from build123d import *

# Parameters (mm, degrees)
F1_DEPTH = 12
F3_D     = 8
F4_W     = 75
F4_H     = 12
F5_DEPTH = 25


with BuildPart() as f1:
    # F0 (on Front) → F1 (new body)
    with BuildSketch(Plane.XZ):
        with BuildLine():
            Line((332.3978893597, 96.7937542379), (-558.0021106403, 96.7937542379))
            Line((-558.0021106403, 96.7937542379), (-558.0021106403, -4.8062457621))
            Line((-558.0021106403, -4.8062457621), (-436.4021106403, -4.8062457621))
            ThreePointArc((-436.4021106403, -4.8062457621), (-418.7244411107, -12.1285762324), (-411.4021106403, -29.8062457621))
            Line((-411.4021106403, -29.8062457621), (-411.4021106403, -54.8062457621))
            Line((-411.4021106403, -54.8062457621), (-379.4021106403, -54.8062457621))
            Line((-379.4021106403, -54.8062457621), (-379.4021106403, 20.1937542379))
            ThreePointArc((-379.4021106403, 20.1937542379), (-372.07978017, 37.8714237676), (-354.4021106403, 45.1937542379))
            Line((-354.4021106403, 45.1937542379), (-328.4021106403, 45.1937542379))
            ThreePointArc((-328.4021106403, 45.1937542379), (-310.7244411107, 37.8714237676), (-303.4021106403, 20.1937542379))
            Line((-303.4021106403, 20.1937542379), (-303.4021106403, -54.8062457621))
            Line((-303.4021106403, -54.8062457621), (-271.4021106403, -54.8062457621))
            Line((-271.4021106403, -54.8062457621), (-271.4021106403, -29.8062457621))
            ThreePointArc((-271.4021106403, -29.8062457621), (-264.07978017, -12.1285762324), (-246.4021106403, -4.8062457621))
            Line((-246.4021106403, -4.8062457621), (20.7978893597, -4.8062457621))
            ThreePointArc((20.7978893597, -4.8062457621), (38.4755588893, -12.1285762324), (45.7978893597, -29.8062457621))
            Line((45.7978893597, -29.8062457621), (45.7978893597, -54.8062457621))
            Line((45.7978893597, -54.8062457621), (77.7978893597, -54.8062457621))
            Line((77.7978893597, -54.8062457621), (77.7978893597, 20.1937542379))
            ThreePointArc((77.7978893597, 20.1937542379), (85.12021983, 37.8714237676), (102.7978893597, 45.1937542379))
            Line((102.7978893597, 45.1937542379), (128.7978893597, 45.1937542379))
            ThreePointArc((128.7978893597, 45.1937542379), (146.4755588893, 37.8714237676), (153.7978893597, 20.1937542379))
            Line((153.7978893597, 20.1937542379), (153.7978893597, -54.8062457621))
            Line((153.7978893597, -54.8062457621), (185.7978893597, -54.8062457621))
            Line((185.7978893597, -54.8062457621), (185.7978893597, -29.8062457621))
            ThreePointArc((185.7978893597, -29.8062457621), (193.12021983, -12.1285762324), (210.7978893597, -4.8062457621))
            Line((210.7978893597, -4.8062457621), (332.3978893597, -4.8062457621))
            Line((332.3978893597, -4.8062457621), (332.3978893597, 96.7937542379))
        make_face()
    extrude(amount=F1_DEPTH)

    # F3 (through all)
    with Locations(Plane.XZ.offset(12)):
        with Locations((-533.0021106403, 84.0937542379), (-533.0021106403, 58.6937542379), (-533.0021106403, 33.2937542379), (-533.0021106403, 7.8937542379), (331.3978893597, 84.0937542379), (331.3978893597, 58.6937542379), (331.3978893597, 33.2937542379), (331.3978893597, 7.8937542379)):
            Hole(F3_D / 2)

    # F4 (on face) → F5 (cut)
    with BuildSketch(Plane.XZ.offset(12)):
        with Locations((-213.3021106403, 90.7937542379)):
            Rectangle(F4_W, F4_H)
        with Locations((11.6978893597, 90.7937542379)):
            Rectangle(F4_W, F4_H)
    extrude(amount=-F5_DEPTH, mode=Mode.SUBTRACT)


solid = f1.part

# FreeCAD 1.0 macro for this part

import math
import FreeCAD as App
import Part
import Sketcher


def add_polygon(sketch, points):
    """Adds a closed chain of lines whose ends are joined by coincident constraints."""
    first, n = sketch.GeometryCount, len(points)
    for a, b in zip(points, points[1:] + points[:1]):
        sketch.addGeometry(Part.LineSegment(App.Vector(*a, 0), App.Vector(*b, 0)), False)
    for i in range(n):
        sketch.addConstraint(Sketcher.Constraint("Coincident", first + i, 2, first + (i + 1) % n, 1))

doc = App.newDocument("Part")
params = doc.addObject("Spreadsheet::Sheet", "Params")
for row, (alias, value) in enumerate([
    ("sketch1_radius", "25 mm"),
    ("sketch1_width", "32 mm"),
    ("sketch1_width2", "26 mm"),
    ("sketch1_height", "25 mm"),
    ("sketch1_height2", "75 mm"),
    ("pad1_length", "12 mm"),
    ("sketch2_diameter", "8 mm"),
    ("hole_diameter", "8 mm"),
    ("sketch3_width", "75 mm"),
    ("sketch3_height", "12 mm"),
    ("pocket1_length", "25 mm"),
], start=1):
    params.set(f"A{row}", alias)
    params.set(f"B{row}", "=" + value)
    params.setAlias(f"B{row}", alias)

body = doc.addObject("PartDesign::Body", "Body")

# Sketch on XZ plane
sketch1 = body.newObject("Sketcher::SketchObject", "Sketch")
sketch1.AttachmentSupport = (doc.getObject("XZ_Plane"), [""])
sketch1.MapMode = "FlatFace"
sketch1.addGeometry(Part.LineSegment(App.Vector(332, 97, 0), App.Vector(-558, 97, 0)), False)
sketch1.addGeometry(Part.LineSegment(App.Vector(-558, 97, 0), App.Vector(-558, -5, 0)), False)
sketch1.addGeometry(Part.LineSegment(App.Vector(-558, -5, 0), App.Vector(-436, -5, 0)), False)
sketch1.addGeometry(Part.ArcOfCircle(Part.Circle(App.Vector(-436, -30, 0), App.Vector(0, 0, 1), 25), math.radians(0), math.radians(90)), False)
sketch1.addGeometry(Part.LineSegment(App.Vector(-411, -30, 0), App.Vector(-411, -55, 0)), False)
sketch1.addGeometry(Part.LineSegment(App.Vector(-411, -55, 0), App.Vector(-379, -55, 0)), False)
sketch1.addGeometry(Part.LineSegment(App.Vector(-379, -55, 0), App.Vector(-379, 20, 0)), False)
sketch1.addGeometry(Part.ArcOfCircle(Part.Circle(App.Vector(-354, 20, 0), App.Vector(0, 0, 1), 25), math.radians(90), math.radians(180)), False)
sketch1.addGeometry(Part.LineSegment(App.Vector(-354, 45, 0), App.Vector(-328, 45, 0)), False)
sketch1.addGeometry(Part.ArcOfCircle(Part.Circle(App.Vector(-328, 20, 0), App.Vector(0, 0, 1), 25), math.radians(0), math.radians(90)), False)
sketch1.addGeometry(Part.LineSegment(App.Vector(-303, 20, 0), App.Vector(-303, -55, 0)), False)
sketch1.addGeometry(Part.LineSegment(App.Vector(-303, -55, 0), App.Vector(-271, -55, 0)), False)
sketch1.addGeometry(Part.LineSegment(App.Vector(-271, -55, 0), App.Vector(-271, -30, 0)), False)
sketch1.addGeometry(Part.ArcOfCircle(Part.Circle(App.Vector(-246, -30, 0), App.Vector(0, 0, 1), 25), math.radians(90), math.radians(180)), False)
sketch1.addGeometry(Part.LineSegment(App.Vector(-246, -5, 0), App.Vector(21, -5, 0)), False)
sketch1.addGeometry(Part.ArcOfCircle(Part.Circle(App.Vector(21, -30, 0), App.Vector(0, 0, 1), 25), math.radians(0), math.radians(90)), False)
sketch1.addGeometry(Part.LineSegment(App.Vector(46, -30, 0), App.Vector(46, -55, 0)), False)
sketch1.addGeometry(Part.LineSegment(App.Vector(46, -55, 0), App.Vector(78, -55, 0)), False)
sketch1.addGeometry(Part.LineSegment(App.Vector(78, -55, 0), App.Vector(78, 20, 0)), False)
sketch1.addGeometry(Part.ArcOfCircle(Part.Circle(App.Vector(103, 20, 0), App.Vector(0, 0, 1), 25), math.radians(90), math.radians(180)), False)
sketch1.addGeometry(Part.LineSegment(App.Vector(103, 45, 0), App.Vector(129, 45, 0)), False)
sketch1.addGeometry(Part.ArcOfCircle(Part.Circle(App.Vector(129, 20, 0), App.Vector(0, 0, 1), 25), math.radians(0), math.radians(90)), False)
sketch1.addGeometry(Part.LineSegment(App.Vector(154, 20, 0), App.Vector(154, -55, 0)), False)
sketch1.addGeometry(Part.LineSegment(App.Vector(154, -55, 0), App.Vector(186, -55, 0)), False)
sketch1.addGeometry(Part.LineSegment(App.Vector(186, -55, 0), App.Vector(186, -30, 0)), False)
sketch1.addGeometry(Part.ArcOfCircle(Part.Circle(App.Vector(211, -30, 0), App.Vector(0, 0, 1), 25), math.radians(90), math.radians(180)), False)
sketch1.addGeometry(Part.LineSegment(App.Vector(211, -5, 0), App.Vector(332, -5, 0)), False)
sketch1.addGeometry(Part.LineSegment(App.Vector(332, -5, 0), App.Vector(332, 97, 0)), False)
sketch1.addConstraint(Sketcher.Constraint("Coincident", 0, 2, 1, 1))
sketch1.addConstraint(Sketcher.Constraint("Coincident", 1, 2, 2, 1))
sketch1.addConstraint(Sketcher.Constraint("Tangent", 2, 2, 3, 2))
sketch1.addConstraint(Sketcher.Constraint("Tangent", 3, 1, 4, 1))
sketch1.addConstraint(Sketcher.Constraint("Coincident", 4, 2, 5, 1))
sketch1.addConstraint(Sketcher.Constraint("Coincident", 5, 2, 6, 1))
sketch1.addConstraint(Sketcher.Constraint("Tangent", 6, 2, 7, 2))
sketch1.addConstraint(Sketcher.Constraint("Tangent", 7, 1, 8, 1))
sketch1.addConstraint(Sketcher.Constraint("Tangent", 8, 2, 9, 2))
sketch1.addConstraint(Sketcher.Constraint("Tangent", 9, 1, 10, 1))
sketch1.addConstraint(Sketcher.Constraint("Coincident", 10, 2, 11, 1))
sketch1.addConstraint(Sketcher.Constraint("Coincident", 11, 2, 12, 1))
sketch1.addConstraint(Sketcher.Constraint("Tangent", 12, 2, 13, 2))
sketch1.addConstraint(Sketcher.Constraint("Tangent", 13, 1, 14, 1))
sketch1.addConstraint(Sketcher.Constraint("Tangent", 14, 2, 15, 2))
sketch1.addConstraint(Sketcher.Constraint("Tangent", 15, 1, 16, 1))
sketch1.addConstraint(Sketcher.Constraint("Coincident", 16, 2, 17, 1))
sketch1.addConstraint(Sketcher.Constraint("Coincident", 17, 2, 18, 1))
sketch1.addConstraint(Sketcher.Constraint("Tangent", 18, 2, 19, 2))
sketch1.addConstraint(Sketcher.Constraint("Tangent", 19, 1, 20, 1))
sketch1.addConstraint(Sketcher.Constraint("Tangent", 20, 2, 21, 2))
sketch1.addConstraint(Sketcher.Constraint("Tangent", 21, 1, 22, 1))
sketch1.addConstraint(Sketcher.Constraint("Coincident", 22, 2, 23, 1))
sketch1.addConstraint(Sketcher.Constraint("Coincident", 23, 2, 24, 1))
sketch1.addConstraint(Sketcher.Constraint("Tangent", 24, 2, 25, 2))
sketch1.addConstraint(Sketcher.Constraint("Tangent", 25, 1, 26, 1))
sketch1.addConstraint(Sketcher.Constraint("Coincident", 26, 2, 27, 1))
sketch1.addConstraint(Sketcher.Constraint("Coincident", 27, 2, 0, 1))
sketch1.addConstraint(Sketcher.Constraint("Horizontal", 0))
sketch1.addConstraint(Sketcher.Constraint("Vertical", 1))
sketch1.addConstraint(Sketcher.Constraint("Horizontal", 2))
sketch1.addConstraint(Sketcher.Constraint("Vertical", 4))
sketch1.addConstraint(Sketcher.Constraint("Horizontal", 5))
sketch1.addConstraint(Sketcher.Constraint("Vertical", 6))
sketch1.addConstraint(Sketcher.Constraint("Horizontal", 8))
sketch1.addConstraint(Sketcher.Constraint("Vertical", 10))
sketch1.addConstraint(Sketcher.Constraint("Horizontal", 11))
sketch1.addConstraint(Sketcher.Constraint("Vertical", 12))
sketch1.addConstraint(Sketcher.Constraint("Horizontal", 14))
sketch1.addConstraint(Sketcher.Constraint("Vertical", 16))
sketch1.addConstraint(Sketcher.Constraint("Horizontal", 17))
sketch1.addConstraint(Sketcher.Constraint("Vertical", 18))
sketch1.addConstraint(Sketcher.Constraint("Horizontal", 20))
sketch1.addConstraint(Sketcher.Constraint("Vertical", 22))
sketch1.addConstraint(Sketcher.Constraint("Horizontal", 23))
sketch1.addConstraint(Sketcher.Constraint("Vertical", 24))
sketch1.addConstraint(Sketcher.Constraint("Horizontal", 26))
sketch1.addConstraint(Sketcher.Constraint("Vertical", 27))
sketch1.addConstraint(Sketcher.Constraint("Equal", 3, 7))
sketch1.addConstraint(Sketcher.Constraint("Equal", 7, 9))
sketch1.addConstraint(Sketcher.Constraint("Equal", 9, 13))
sketch1.addConstraint(Sketcher.Constraint("Equal", 13, 15))
sketch1.addConstraint(Sketcher.Constraint("Equal", 15, 19))
sketch1.addConstraint(Sketcher.Constraint("Equal", 19, 21))
sketch1.addConstraint(Sketcher.Constraint("Equal", 21, 25))
sketch1.addConstraint(Sketcher.Constraint("Horizontal", 3, 3, 13, 3))
sketch1.addConstraint(Sketcher.Constraint("Horizontal", 9, 3, 19, 3))
sketch1.addConstraint(Sketcher.Constraint("Horizontal", 15, 3, 25, 3))
sketch1.addConstraint(Sketcher.Constraint("Horizontal", 5, 2, 10, 2))
sketch1.addConstraint(Sketcher.Constraint("Horizontal", 11, 2, 16, 2))
sketch1.addConstraint(Sketcher.Constraint("Horizontal", 17, 2, 22, 2))
sketch1.addConstraint(Sketcher.Constraint("Equal", 5, 11))
sketch1.addConstraint(Sketcher.Constraint("Equal", 11, 17))
sketch1.addConstraint(Sketcher.Constraint("Equal", 8, 20))
sketch1.addConstraint(Sketcher.Constraint("Equal", 17, 23))
sketch1.addConstraint(Sketcher.Constraint("Equal", 2, 26))
sketch1.addConstraint(Sketcher.Constraint("Radius", 3, 25.0))
sketch1.addConstraint(Sketcher.Constraint("DistanceX", 5, 1, 5, 2, 32.0))
sketch1.addConstraint(Sketcher.Constraint("DistanceX", 8, 1, 8, 2, 26.0))
sketch1.addConstraint(Sketcher.Constraint("DistanceY", 4, 2, 4, 1, 25.0))
sketch1.addConstraint(Sketcher.Constraint("DistanceY", 6, 1, 6, 2, 75.0))
sketch1.addConstraint(Sketcher.Constraint("DistanceX", 0, 2, 0, 1, 890.4))
sketch1.addConstraint(Sketcher.Constraint("DistanceX", 2, 1, 2, 2, 121.6))
sketch1.addConstraint(Sketcher.Constraint("DistanceY", 1, 2, 1, 1, 101.6))
sketch1.addConstraint(Sketcher.Constraint("DistanceX", 3, 3, -1, 1, 436.402111))
sketch1.addConstraint(Sketcher.Constraint("DistanceY", 3, 3, -1, 1, 29.806246))
sketch1.setExpression("Constraints[66]", "Params.sketch1_radius")
sketch1.setExpression("Constraints[67]", "Params.sketch1_width")
sketch1.setExpression("Constraints[68]", "Params.sketch1_width2")
sketch1.setExpression("Constraints[69]", "Params.sketch1_height")
sketch1.setExpression("Constraints[70]", "Params.sketch1_height2")
pad1 = body.newObject("PartDesign::Pad", "Pad")
pad1.Profile = sketch1
pad1.setExpression("Length", "Params.pad1_length")

# Sketch on XZ plane
sketch2 = body.newObject("Sketcher::SketchObject", "Sketch001")
sketch2.AttachmentSupport = (doc.getObject("XZ_Plane"), [""])
sketch2.MapMode = "FlatFace"
sketch2.AttachmentOffset = App.Placement(App.Vector(0, 0, 12), App.Rotation())
sketch2.addGeometry(Part.Circle(App.Vector(-533, 84.1, 0), App.Vector(0, 0, 1), 4), False)
sketch2.addGeometry(Part.Circle(App.Vector(-533, 58.7, 0), App.Vector(0, 0, 1), 4), False)
sketch2.addGeometry(Part.Circle(App.Vector(-533, 33.3, 0), App.Vector(0, 0, 1), 4), False)
sketch2.addGeometry(Part.Circle(App.Vector(-533, 7.9, 0), App.Vector(0, 0, 1), 4), False)
sketch2.addGeometry(Part.Circle(App.Vector(331.4, 84.1, 0), App.Vector(0, 0, 1), 4), False)
sketch2.addGeometry(Part.Circle(App.Vector(331.4, 58.7, 0), App.Vector(0, 0, 1), 4), False)
sketch2.addGeometry(Part.Circle(App.Vector(331.4, 33.3, 0), App.Vector(0, 0, 1), 4), False)
sketch2.addGeometry(Part.Circle(App.Vector(331.4, 7.9, 0), App.Vector(0, 0, 1), 4), False)
sketch2.addConstraint(Sketcher.Constraint("Equal", 0, 1))
sketch2.addConstraint(Sketcher.Constraint("Equal", 1, 2))
sketch2.addConstraint(Sketcher.Constraint("Equal", 2, 3))
sketch2.addConstraint(Sketcher.Constraint("Equal", 3, 4))
sketch2.addConstraint(Sketcher.Constraint("Equal", 4, 5))
sketch2.addConstraint(Sketcher.Constraint("Equal", 5, 6))
sketch2.addConstraint(Sketcher.Constraint("Equal", 6, 7))
sketch2.addConstraint(Sketcher.Constraint("Horizontal", 0, 3, 4, 3))
sketch2.addConstraint(Sketcher.Constraint("Horizontal", 1, 3, 5, 3))
sketch2.addConstraint(Sketcher.Constraint("Horizontal", 2, 3, 6, 3))
sketch2.addConstraint(Sketcher.Constraint("Horizontal", 3, 3, 7, 3))
sketch2.addConstraint(Sketcher.Constraint("Vertical", 0, 3, 1, 3))
sketch2.addConstraint(Sketcher.Constraint("Vertical", 1, 3, 2, 3))
sketch2.addConstraint(Sketcher.Constraint("Vertical", 2, 3, 3, 3))
sketch2.addConstraint(Sketcher.Constraint("Vertical", 4, 3, 5, 3))
sketch2.addConstraint(Sketcher.Constraint("Vertical", 5, 3, 6, 3))
sketch2.addConstraint(Sketcher.Constraint("Vertical", 6, 3, 7, 3))
sketch2.addConstraint(Sketcher.Constraint("Diameter", 0, 8.0))
sketch2.addConstraint(Sketcher.Constraint("DistanceY", 1, 3, 0, 3, 25.4))
sketch2.addConstraint(Sketcher.Constraint("DistanceY", 2, 3, 1, 3, 25.4))
sketch2.addConstraint(Sketcher.Constraint("DistanceY", 3, 3, 2, 3, 25.4))
sketch2.addConstraint(Sketcher.Constraint("DistanceX", 0, 3, 4, 3, 864.4))
sketch2.addConstraint(Sketcher.Constraint("DistanceX", 0, 3, -1, 1, 533.002111))
sketch2.addConstraint(Sketcher.Constraint("DistanceY", -1, 1, 0, 3, 84.093754))
sketch2.setExpression("Constraints[17]", "Params.sketch2_diameter")
doc.recompute()
hole = body.newObject("PartDesign::Hole", "Hole")
hole.Profile = sketch2
hole.ThreadType = "None"
hole.setExpression("Diameter", "Params.hole_diameter")
hole.DepthType = "ThroughAll"

# Sketch on XZ plane
sketch3 = body.newObject("Sketcher::SketchObject", "Sketch002")
sketch3.AttachmentSupport = (doc.getObject("XZ_Plane"), [""])
sketch3.MapMode = "FlatFace"
sketch3.AttachmentOffset = App.Placement(App.Vector(0, 0, 12), App.Rotation())
add_polygon(sketch3, [(-251, 97), (-251, 85), (-176, 85), (-176, 97)])  # lines 0-3
add_polygon(sketch3, [(-26, 97), (-26, 85), (49, 85), (49, 97)])  # lines 4-7
sketch3.addConstraint(Sketcher.Constraint("Vertical", 0))
sketch3.addConstraint(Sketcher.Constraint("Horizontal", 1))
sketch3.addConstraint(Sketcher.Constraint("Vertical", 2))
sketch3.addConstraint(Sketcher.Constraint("Horizontal", 3))
sketch3.addConstraint(Sketcher.Constraint("Vertical", 4))
sketch3.addConstraint(Sketcher.Constraint("Horizontal", 5))
sketch3.addConstraint(Sketcher.Constraint("Vertical", 6))
sketch3.addConstraint(Sketcher.Constraint("Horizontal", 7))
sketch3.addConstraint(Sketcher.Constraint("Horizontal", 1, 2, 4, 2))
sketch3.addConstraint(Sketcher.Constraint("Horizontal", 3, 2, 6, 2))
sketch3.addConstraint(Sketcher.Constraint("Equal", 3, 5))
sketch3.addConstraint(Sketcher.Constraint("DistanceX", 1, 1, 1, 2, 75.0))
sketch3.addConstraint(Sketcher.Constraint("DistanceY", 0, 2, 0, 1, 12.0))
sketch3.addConstraint(Sketcher.Constraint("DistanceX", 1, 2, 4, 2, 150.0))
sketch3.addConstraint(Sketcher.Constraint("DistanceX", 0, 2, -1, 1, 250.802111))
sketch3.addConstraint(Sketcher.Constraint("DistanceY", -1, 1, 0, 2, 84.793754))
sketch3.setExpression("Constraints[19]", "Params.sketch3_width")
sketch3.setExpression("Constraints[20]", "Params.sketch3_height")
pocket1 = body.newObject("PartDesign::Pocket", "Pocket")
pocket1.Profile = sketch3
pocket1.setExpression("Length", "Params.pocket1_length")

doc.recompute()
